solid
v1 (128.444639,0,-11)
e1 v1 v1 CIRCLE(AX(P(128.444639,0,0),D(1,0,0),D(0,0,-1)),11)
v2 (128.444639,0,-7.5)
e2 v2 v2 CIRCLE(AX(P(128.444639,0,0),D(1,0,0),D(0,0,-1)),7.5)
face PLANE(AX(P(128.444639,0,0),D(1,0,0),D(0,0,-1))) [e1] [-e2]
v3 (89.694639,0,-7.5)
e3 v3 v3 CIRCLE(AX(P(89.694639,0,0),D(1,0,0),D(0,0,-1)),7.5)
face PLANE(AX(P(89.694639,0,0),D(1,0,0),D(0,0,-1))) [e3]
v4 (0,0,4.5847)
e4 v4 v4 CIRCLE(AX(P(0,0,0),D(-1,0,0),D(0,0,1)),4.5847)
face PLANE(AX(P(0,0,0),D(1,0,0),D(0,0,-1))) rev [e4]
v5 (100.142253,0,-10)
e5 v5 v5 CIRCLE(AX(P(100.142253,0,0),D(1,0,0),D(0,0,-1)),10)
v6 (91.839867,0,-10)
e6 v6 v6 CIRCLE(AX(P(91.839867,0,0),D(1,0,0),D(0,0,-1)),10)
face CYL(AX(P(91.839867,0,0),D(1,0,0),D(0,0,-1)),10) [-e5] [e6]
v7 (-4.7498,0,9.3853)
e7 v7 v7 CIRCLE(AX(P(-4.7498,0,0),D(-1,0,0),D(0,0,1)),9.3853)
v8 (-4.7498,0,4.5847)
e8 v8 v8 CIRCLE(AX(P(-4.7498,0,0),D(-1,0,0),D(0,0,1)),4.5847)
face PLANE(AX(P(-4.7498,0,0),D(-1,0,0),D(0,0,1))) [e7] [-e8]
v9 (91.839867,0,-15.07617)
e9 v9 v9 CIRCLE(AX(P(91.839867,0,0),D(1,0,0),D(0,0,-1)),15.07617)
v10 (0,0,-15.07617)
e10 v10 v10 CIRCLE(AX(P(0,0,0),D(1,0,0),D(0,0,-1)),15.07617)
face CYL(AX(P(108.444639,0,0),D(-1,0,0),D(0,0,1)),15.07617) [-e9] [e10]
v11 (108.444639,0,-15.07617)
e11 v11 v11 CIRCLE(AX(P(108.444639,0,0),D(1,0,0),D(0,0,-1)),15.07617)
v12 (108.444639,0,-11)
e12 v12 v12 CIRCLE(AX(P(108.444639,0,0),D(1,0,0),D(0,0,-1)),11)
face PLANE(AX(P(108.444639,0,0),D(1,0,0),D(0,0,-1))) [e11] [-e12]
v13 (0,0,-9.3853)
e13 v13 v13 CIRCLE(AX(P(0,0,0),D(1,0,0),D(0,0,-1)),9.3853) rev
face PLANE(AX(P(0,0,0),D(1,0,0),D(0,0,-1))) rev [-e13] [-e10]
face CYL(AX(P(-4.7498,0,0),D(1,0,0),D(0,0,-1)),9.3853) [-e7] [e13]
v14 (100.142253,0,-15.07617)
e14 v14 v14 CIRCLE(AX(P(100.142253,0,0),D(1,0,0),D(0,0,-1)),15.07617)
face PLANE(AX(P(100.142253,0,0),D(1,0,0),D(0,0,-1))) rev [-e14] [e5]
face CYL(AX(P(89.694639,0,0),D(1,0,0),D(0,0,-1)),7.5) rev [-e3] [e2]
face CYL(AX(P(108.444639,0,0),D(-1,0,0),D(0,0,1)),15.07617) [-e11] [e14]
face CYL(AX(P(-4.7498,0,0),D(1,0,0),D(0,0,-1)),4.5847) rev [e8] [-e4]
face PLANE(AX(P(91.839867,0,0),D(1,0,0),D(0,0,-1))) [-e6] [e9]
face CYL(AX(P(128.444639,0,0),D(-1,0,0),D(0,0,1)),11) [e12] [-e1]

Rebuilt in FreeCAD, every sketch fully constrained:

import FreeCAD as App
import Part
import Sketcher

doc = App.newDocument("Part")
body = doc.addObject("PartDesign::Body", "Body")

# Sketch on YZ plane
sketch1 = body.newObject("Sketcher::SketchObject", "Sketch")
sketch1.AttachmentSupport = (doc.getObject("YZ_Plane"), [""])
sketch1.MapMode = "FlatFace"
sketch1.addGeometry(Part.Circle(App.Vector(0, 0, 0), App.Vector(0, 0, 1), 15.07617), False)
sketch1.addConstraint([
    Sketcher.Constraint("Coincident", 0, 3, -1, 1),
    Sketcher.Constraint("Diameter", 0, 30.15234),
])
pad1 = body.newObject("PartDesign::Pad", "Pad")
pad1.Profile = sketch1
pad1.Length = 108.444639

# Sketch on YZ plane
sketch2 = body.newObject("Sketcher::SketchObject", "Sketch001")
sketch2.AttachmentSupport = (doc.getObject("YZ_Plane"), [""])
sketch2.MapMode = "FlatFace"
sketch2.addGeometry([
    Part.Circle(App.Vector(0, 0, 0), App.Vector(0, 0, 1), 9.3853),
    Part.Circle(App.Vector(0, 0, 0), App.Vector(0, 0, 1), 4.5847),
], False)
sketch2.addConstraint([
    Sketcher.Constraint("Coincident", 0, 3, -1, 1),
    Sketcher.Constraint("Coincident", 1, 3, -1, 1),
    Sketcher.Constraint("Diameter", 0, 18.7706),
    Sketcher.Constraint("Diameter", 1, 9.1694),
])
pad2 = body.newObject("PartDesign::Pad", "Pad001")
pad2.Profile = sketch2
pad2.Length = 4.7498
pad2.Reversed = True

# Sketch on YZ plane
sketch3 = body.newObject("Sketcher::SketchObject", "Sketch002")
sketch3.AttachmentSupport = (doc.getObject("YZ_Plane"), [""])
sketch3.MapMode = "FlatFace"
sketch3.AttachmentOffset = App.Placement(App.Vector(0, 0, 108.444639), App.Rotation())
sketch3.addGeometry(Part.Circle(App.Vector(0, 0, 0), App.Vector(0, 0, 1), 7.5), False)
sketch3.addConstraint([
    Sketcher.Constraint("Coincident", 0, 3, -1, 1),
    Sketcher.Constraint("Diameter", 0, 15.0),
])
pocket1 = body.newObject("PartDesign::Pocket", "Pocket")
pocket1.Profile = sketch3
pocket1.Length = 18.75

# Sketch on YZ plane
sketch4 = body.newObject("Sketcher::SketchObject", "Sketch003")
sketch4.AttachmentSupport = (doc.getObject("YZ_Plane"), [""])
sketch4.MapMode = "FlatFace"
sketch4.AttachmentOffset = App.Placement(App.Vector(0, 0, 128.444639), App.Rotation())
sketch4.addGeometry([
    Part.Circle(App.Vector(0, 0, 0), App.Vector(0, 0, 1), 11),
    Part.Circle(App.Vector(0, 0, 0), App.Vector(0, 0, 1), 7.5),
], False)
sketch4.addConstraint([
    Sketcher.Constraint("Coincident", 0, 3, -1, 1),
    Sketcher.Constraint("Coincident", 1, 3, -1, 1),
    Sketcher.Constraint("Diameter", 0, 22.0),
    Sketcher.Constraint("Diameter", 1, 15.0),
])
pad3 = body.newObject("PartDesign::Pad", "Pad002")
pad3.Profile = sketch4
pad3.Length = 20
pad3.Reversed = True

# Sketch on YZ plane
sketch5 = body.newObject("Sketcher::SketchObject", "Sketch004")
sketch5.AttachmentSupport = (doc.getObject("YZ_Plane"), [""])
sketch5.MapMode = "FlatFace"
sketch5.AttachmentOffset = App.Placement(App.Vector(0, 0, 91.839867), App.Rotation())
sketch5.addGeometry([
    Part.Circle(App.Vector(0, 0, 0), App.Vector(0, 0, 1), 15.07617),
    Part.Circle(App.Vector(0, 0, 0), App.Vector(0, 0, 1), 10),
], False)
sketch5.addConstraint([
    Sketcher.Constraint("Coincident", 0, 3, -1, 1),
    Sketcher.Constraint("Coincident", 1, 3, -1, 1),
    Sketcher.Constraint("Diameter", 1, 20.0),
    Sketcher.Constraint("Diameter", 0, 30.15234),
])
pocket2 = body.newObject("PartDesign::Pocket", "Pocket001")
pocket2.Profile = sketch5
pocket2.Length = 8.302386
pocket2.Reversed = True

doc.recompute()
